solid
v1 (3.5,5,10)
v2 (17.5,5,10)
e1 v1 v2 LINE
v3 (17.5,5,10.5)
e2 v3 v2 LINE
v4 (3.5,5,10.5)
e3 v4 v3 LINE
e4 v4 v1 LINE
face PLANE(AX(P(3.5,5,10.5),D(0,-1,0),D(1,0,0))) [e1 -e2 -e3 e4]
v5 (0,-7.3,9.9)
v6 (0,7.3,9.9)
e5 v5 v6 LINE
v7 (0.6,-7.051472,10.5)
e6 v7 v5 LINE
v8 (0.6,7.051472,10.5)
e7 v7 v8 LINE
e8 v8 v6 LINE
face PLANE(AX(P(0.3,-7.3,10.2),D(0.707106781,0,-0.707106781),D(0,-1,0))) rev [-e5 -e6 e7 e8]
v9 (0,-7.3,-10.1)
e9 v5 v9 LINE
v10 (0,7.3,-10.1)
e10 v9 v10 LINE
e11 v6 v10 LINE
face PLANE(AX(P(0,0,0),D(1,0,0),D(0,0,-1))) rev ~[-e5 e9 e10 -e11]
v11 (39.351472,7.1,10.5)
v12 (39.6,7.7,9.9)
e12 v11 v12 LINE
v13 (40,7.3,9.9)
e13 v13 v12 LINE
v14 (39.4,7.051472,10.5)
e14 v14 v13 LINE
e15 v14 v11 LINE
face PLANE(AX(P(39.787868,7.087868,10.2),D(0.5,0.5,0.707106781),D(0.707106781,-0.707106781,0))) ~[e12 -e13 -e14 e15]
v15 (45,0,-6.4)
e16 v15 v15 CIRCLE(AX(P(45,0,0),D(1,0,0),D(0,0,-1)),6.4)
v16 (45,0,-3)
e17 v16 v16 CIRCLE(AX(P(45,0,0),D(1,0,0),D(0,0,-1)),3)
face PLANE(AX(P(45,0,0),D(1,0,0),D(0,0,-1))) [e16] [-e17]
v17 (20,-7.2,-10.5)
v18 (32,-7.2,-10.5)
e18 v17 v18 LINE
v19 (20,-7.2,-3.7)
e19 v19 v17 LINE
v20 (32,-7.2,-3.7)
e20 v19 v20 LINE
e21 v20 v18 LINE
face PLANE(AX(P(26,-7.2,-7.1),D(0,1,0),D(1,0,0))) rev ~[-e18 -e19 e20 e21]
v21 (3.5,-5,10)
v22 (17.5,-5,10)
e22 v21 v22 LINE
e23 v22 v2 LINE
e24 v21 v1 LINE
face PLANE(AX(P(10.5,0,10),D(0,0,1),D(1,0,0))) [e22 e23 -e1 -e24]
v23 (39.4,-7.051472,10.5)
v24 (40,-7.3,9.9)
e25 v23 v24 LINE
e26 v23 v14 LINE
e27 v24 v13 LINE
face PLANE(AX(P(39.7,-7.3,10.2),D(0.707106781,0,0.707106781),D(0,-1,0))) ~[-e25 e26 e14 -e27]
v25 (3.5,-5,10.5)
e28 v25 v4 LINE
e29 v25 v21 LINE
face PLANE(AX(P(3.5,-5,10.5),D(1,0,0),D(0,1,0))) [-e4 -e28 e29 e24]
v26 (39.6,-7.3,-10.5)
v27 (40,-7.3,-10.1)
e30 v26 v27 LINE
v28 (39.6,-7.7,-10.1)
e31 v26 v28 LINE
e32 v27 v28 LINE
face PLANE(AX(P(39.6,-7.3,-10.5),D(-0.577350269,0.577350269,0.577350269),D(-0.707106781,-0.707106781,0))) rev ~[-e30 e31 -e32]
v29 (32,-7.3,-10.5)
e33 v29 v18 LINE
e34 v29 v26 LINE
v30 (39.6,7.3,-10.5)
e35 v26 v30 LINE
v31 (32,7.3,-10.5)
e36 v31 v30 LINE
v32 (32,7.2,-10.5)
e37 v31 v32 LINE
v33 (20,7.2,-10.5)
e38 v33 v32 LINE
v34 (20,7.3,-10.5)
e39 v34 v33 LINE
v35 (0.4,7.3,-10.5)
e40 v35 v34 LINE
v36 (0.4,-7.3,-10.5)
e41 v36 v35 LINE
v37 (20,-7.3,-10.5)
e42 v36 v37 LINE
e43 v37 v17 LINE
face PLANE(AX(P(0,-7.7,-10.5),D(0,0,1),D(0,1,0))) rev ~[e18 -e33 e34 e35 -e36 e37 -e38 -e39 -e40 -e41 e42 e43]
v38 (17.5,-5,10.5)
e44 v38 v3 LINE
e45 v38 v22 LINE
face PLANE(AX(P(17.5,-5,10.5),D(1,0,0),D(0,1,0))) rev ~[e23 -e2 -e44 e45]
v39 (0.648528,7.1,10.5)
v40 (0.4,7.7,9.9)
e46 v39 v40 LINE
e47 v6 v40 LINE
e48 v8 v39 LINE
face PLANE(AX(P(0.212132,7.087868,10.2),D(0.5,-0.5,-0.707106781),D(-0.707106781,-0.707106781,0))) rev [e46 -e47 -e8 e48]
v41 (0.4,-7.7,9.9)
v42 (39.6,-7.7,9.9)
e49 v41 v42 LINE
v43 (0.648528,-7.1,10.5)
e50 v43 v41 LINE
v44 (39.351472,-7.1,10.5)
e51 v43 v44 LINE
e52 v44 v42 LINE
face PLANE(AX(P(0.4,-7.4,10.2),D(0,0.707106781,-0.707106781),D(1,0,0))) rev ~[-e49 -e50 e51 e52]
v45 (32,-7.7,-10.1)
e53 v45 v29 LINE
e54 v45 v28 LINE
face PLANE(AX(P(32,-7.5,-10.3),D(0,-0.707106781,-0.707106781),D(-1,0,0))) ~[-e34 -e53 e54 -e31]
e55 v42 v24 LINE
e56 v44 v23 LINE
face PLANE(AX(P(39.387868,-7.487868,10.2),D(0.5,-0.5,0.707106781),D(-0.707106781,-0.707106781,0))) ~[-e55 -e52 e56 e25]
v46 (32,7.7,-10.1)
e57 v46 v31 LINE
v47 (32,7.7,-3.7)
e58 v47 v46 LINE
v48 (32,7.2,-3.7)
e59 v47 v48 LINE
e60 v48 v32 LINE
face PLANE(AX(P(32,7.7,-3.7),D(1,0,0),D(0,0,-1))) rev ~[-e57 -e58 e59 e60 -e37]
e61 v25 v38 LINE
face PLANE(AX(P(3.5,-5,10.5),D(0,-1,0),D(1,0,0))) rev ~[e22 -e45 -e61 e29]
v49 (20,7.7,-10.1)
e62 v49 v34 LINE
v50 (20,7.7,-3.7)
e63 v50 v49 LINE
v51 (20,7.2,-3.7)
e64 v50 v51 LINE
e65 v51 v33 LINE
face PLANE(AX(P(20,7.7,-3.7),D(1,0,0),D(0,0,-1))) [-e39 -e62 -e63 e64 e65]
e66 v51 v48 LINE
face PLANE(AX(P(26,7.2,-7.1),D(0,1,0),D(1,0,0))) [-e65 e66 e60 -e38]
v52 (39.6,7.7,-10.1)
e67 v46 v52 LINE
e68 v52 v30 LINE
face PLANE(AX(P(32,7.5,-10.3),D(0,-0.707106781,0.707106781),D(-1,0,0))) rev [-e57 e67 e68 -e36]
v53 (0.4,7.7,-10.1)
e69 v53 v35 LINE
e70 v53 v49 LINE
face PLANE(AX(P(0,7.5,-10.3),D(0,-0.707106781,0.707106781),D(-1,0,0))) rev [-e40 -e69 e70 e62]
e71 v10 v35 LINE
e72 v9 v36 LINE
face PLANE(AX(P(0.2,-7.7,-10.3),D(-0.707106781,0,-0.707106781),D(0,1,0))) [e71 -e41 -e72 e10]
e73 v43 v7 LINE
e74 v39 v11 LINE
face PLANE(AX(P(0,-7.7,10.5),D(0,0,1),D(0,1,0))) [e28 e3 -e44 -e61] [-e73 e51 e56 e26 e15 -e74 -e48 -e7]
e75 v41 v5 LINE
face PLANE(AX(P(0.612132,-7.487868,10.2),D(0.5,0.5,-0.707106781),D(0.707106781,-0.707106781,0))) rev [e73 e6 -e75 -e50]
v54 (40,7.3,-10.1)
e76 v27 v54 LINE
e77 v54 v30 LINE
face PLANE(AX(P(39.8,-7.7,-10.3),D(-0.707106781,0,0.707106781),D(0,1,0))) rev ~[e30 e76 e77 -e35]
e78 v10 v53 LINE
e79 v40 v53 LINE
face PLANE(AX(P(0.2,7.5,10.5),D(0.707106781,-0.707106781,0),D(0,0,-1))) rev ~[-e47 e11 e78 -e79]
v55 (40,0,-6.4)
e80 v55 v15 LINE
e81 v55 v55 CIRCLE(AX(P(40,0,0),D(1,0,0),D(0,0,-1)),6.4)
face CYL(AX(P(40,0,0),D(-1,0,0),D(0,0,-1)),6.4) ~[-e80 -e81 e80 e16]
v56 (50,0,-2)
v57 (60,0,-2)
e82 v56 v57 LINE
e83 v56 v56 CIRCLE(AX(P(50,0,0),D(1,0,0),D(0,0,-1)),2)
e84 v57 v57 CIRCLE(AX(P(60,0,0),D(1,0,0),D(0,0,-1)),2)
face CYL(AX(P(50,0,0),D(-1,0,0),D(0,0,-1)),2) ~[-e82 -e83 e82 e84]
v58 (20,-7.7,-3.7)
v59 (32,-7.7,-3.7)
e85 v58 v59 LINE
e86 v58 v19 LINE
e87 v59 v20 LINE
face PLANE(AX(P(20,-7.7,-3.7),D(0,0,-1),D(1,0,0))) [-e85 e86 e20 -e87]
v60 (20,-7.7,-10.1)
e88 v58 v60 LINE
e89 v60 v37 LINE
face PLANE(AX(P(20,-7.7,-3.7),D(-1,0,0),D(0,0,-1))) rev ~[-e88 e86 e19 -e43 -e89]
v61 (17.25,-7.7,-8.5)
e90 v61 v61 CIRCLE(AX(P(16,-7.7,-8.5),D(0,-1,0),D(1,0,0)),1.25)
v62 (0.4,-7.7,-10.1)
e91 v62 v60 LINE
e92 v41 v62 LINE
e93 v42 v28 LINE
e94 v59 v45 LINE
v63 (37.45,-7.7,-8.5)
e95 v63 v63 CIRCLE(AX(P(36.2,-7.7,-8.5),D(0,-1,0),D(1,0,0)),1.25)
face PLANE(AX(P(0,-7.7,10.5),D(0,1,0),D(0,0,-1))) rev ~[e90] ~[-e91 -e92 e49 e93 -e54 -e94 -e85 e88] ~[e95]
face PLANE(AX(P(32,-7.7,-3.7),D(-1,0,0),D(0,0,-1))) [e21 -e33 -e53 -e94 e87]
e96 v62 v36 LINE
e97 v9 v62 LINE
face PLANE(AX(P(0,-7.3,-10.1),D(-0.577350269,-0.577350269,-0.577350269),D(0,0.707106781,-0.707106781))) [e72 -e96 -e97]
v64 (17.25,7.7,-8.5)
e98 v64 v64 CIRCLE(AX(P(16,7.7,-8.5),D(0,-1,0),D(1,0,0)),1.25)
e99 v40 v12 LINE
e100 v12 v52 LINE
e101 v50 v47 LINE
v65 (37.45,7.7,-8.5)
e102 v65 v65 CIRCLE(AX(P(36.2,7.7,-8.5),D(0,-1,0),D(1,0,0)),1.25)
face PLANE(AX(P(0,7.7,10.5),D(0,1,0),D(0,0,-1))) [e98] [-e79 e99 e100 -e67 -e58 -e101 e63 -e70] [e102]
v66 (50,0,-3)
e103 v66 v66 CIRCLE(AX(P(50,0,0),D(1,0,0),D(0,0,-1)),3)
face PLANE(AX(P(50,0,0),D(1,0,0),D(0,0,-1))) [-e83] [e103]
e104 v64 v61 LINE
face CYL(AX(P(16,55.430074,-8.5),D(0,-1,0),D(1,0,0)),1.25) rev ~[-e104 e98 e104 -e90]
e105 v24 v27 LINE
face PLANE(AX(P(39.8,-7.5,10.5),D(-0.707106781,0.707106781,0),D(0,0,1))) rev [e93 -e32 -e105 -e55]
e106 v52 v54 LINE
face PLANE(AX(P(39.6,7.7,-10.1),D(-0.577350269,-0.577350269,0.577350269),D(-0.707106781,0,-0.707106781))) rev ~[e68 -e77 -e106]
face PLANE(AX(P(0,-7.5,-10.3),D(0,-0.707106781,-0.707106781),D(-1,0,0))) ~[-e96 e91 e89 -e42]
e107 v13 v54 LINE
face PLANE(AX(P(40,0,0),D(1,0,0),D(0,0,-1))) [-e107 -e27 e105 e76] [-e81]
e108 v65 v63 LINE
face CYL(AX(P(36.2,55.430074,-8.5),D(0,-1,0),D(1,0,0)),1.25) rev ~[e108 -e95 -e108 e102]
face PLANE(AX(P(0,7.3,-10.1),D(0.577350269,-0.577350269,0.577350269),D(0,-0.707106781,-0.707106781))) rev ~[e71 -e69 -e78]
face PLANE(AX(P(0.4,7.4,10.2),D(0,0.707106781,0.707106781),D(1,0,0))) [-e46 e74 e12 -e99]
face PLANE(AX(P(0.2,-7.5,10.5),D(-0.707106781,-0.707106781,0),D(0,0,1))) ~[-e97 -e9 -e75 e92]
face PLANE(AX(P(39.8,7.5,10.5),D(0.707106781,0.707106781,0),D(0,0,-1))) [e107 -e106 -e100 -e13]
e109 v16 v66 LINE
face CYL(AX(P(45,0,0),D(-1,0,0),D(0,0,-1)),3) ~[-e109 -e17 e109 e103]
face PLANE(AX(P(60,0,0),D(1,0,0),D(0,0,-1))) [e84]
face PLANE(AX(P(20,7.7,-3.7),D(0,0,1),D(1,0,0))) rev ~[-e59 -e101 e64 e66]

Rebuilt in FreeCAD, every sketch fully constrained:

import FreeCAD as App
import Part
import Sketcher
from FreeCAD import Vector
Q = App.Units.Quantity


def edges_at(feature, points):
    """Names of the edges that pass closest to the given points."""
    edges = feature.Shape.Edges
    near = lambda p: min(range(len(edges)), key=lambda i: edges[i].distToShape(Part.Vertex(*p))[0])
    return sorted({f"Edge{near(p) + 1}" for p in points})


def add_polygon(sketch, points):
    """Adds a closed chain of lines whose ends are joined by coincident constraints."""
    first, n = sketch.GeometryCount, len(points)
    for a, b in zip(points, points[1:] + points[:1]):
        sketch.addGeometry(Part.LineSegment(App.Vector(*a, 0), App.Vector(*b, 0)), False)
    for i in range(n):
        sketch.addConstraint(Sketcher.Constraint("Coincident", first + i, 2, first + (i + 1) % n, 1))

doc = App.newDocument("Part")
body = doc.addObject("PartDesign::Body", "Body")

# Sketch on YZ plane
sketch1 = body.newObject("Sketcher::SketchObject", "Sketch")
sketch1.AttachmentSupport = (doc.getObject("YZ_Plane"), [""])
sketch1.MapMode = "FlatFace"
add_polygon(sketch1, [(7.7, 10.5), (-7.7, 10.5), (-7.7, -10.5), (7.7, -10.5)])  # lines 0-3
sketch1.addConstraint([
    Sketcher.Constraint("Horizontal", 0),
    Sketcher.Constraint("Vertical", 1),
    Sketcher.Constraint("Horizontal", 2),
    Sketcher.Constraint("Vertical", 3),
    Sketcher.Constraint("Symmetric", 0, 2, 2, 2, -1, 1),
    Sketcher.Constraint("DistanceY", 1, 2, 1, 1, Q("21 mm")),
    Sketcher.Constraint("DistanceX", 0, 2, 0, 1, Q("15.4 mm")),
])
pad1 = body.newObject("PartDesign::Pad", "Pad")
pad1.Profile = sketch1
pad1.Length = 40

# Sketch on XY plane
sketch2 = body.newObject("Sketcher::SketchObject", "Sketch001")
sketch2.AttachmentSupport = (doc.getObject("XY_Plane"), [""])
sketch2.MapMode = "FlatFace"
sketch2.AttachmentOffset = App.Placement(Vector(0, 0, 10.5), App.Rotation())
add_polygon(sketch2, [(3.5, 5), (3.5, -5), (17.5, -5), (17.5, 5)])  # lines 0-3
sketch2.addConstraint([
    Sketcher.Constraint("Vertical", 0),
    Sketcher.Constraint("Horizontal", 1),
    Sketcher.Constraint("Vertical", 2),
    Sketcher.Constraint("Horizontal", 3),
    Sketcher.Constraint("DistanceX", 1, 1, 1, 2, Q("14 mm")),
    Sketcher.Constraint("DistanceY", 0, 2, 0, 1, Q("10 mm")),
    Sketcher.Constraint("DistanceY", 0, 2, -1, 1, Q("5 mm")),
    Sketcher.Constraint("DistanceX", -1, 1, 0, 2, Q("3.5 mm")),
])
pocket1 = body.newObject("PartDesign::Pocket", "Pocket")
pocket1.Profile = sketch2
pocket1.Length = 0.5

# Sketch on XZ plane
sketch3 = body.newObject("Sketcher::SketchObject", "Sketch002")
sketch3.AttachmentSupport = (doc.getObject("XZ_Plane"), [""])
sketch3.MapMode = "FlatFace"
sketch3.AttachmentOffset = App.Placement(Vector(0, 0, -7.7), App.Rotation())
add_polygon(sketch3, [(20, -10.5), (20, -3.7), (32, -3.7), (32, -10.5)])  # lines 0-3
sketch3.addConstraint([
    Sketcher.Constraint("Vertical", 0),
    Sketcher.Constraint("Horizontal", 1),
    Sketcher.Constraint("Vertical", 2),
    Sketcher.Constraint("Horizontal", 3),
    Sketcher.Constraint("DistanceX", 1, 1, 1, 2, Q("12 mm")),
    Sketcher.Constraint("DistanceY", 0, 1, 0, 2, Q("6.8 mm")),
    Sketcher.Constraint("DistanceX", -1, 1, 0, 2, Q("20 mm")),
    Sketcher.Constraint("DistanceY", 0, 2, -1, 1, Q("3.7 mm")),
])
pocket2 = body.newObject("PartDesign::Pocket", "Pocket001")
pocket2.Profile = sketch3
pocket2.Length = 0.5
pocket2.Reversed = True

# Sketch on XZ plane
sketch4 = body.newObject("Sketcher::SketchObject", "Sketch003")
sketch4.AttachmentSupport = (doc.getObject("XZ_Plane"), [""])
sketch4.MapMode = "FlatFace"
sketch4.AttachmentOffset = App.Placement(Vector(0, 0, 7.7), App.Rotation())
add_polygon(sketch4, [(20, -10.5), (20, -3.7), (32, -3.7), (32, -10.5)])  # lines 0-3
sketch4.addConstraint([
    Sketcher.Constraint("Vertical", 0),
    Sketcher.Constraint("Horizontal", 1),
    Sketcher.Constraint("Vertical", 2),
    Sketcher.Constraint("Horizontal", 3),
    Sketcher.Constraint("DistanceX", 1, 1, 1, 2, Q("12 mm")),
    Sketcher.Constraint("DistanceY", 0, 1, 0, 2, Q("6.8 mm")),
    Sketcher.Constraint("DistanceX", -1, 1, 0, 2, Q("20 mm")),
    Sketcher.Constraint("DistanceY", 0, 2, -1, 1, Q("3.7 mm")),
])
pocket3 = body.newObject("PartDesign::Pocket", "Pocket002")
pocket3.Profile = sketch4
pocket3.Length = 0.5

# Sketch on XZ plane
sketch5 = body.newObject("Sketcher::SketchObject", "Sketch004")
sketch5.AttachmentSupport = (doc.getObject("XZ_Plane"), [""])
sketch5.MapMode = "FlatFace"
sketch5.AttachmentOffset = App.Placement(Vector(0, 0, -7.7), App.Rotation())
sketch5.addGeometry(Part.Circle(Vector(36.2, -8.5, 0), Vector(0, 0, 1), 1.25), False)
sketch5.addConstraint([
    Sketcher.Constraint("Diameter", 0, Q("2.5 mm")),
    Sketcher.Constraint("DistanceX", -1, 1, 0, 3, Q("36.2 mm")),
    Sketcher.Constraint("DistanceY", 0, 3, -1, 1, Q("8.5 mm")),
])
doc.recompute()
hole = body.newObject("PartDesign::Hole", "Hole")
hole.Profile = sketch5
hole.ThreadType = "None"
hole.Diameter = 2.5
hole.DepthType = "ThroughAll"
hole.Reversed = True

# Sketch on XZ plane
sketch6 = body.newObject("Sketcher::SketchObject", "Sketch005")
sketch6.AttachmentSupport = (doc.getObject("XZ_Plane"), [""])
sketch6.MapMode = "FlatFace"
sketch6.AttachmentOffset = App.Placement(Vector(0, 0, -7.7), App.Rotation())
sketch6.addGeometry(Part.Circle(Vector(16, -8.5, 0), Vector(0, 0, 1), 1.25), False)
sketch6.addConstraint([
    Sketcher.Constraint("Diameter", 0, Q("2.5 mm")),
    Sketcher.Constraint("DistanceX", -1, 1, 0, 3, Q("16 mm")),
    Sketcher.Constraint("DistanceY", 0, 3, -1, 1, Q("8.5 mm")),
])
doc.recompute()
hole2 = body.newObject("PartDesign::Hole", "Hole001")
hole2.Profile = sketch6
hole2.ThreadType = "None"
hole2.Diameter = 2.5
hole2.DepthType = "ThroughAll"
hole2.Reversed = True

# Sketch on YZ plane
sketch7 = body.newObject("Sketcher::SketchObject", "Sketch006")
sketch7.AttachmentSupport = (doc.getObject("YZ_Plane"), [""])
sketch7.MapMode = "FlatFace"
sketch7.AttachmentOffset = App.Placement(Vector(0, 0, 40), App.Rotation())
sketch7.addGeometry(Part.Circle(Vector(0, 0, 0), Vector(0, 0, 1), 6.4), False)
sketch7.addConstraint([
    Sketcher.Constraint("Coincident", 0, 3, -1, 1),
    Sketcher.Constraint("Diameter", 0, Q("12.8 mm")),
])
pad2 = body.newObject("PartDesign::Pad", "Pad001")
pad2.Profile = sketch7
pad2.Length = 5

# Sketch on YZ plane
sketch8 = body.newObject("Sketcher::SketchObject", "Sketch007")
sketch8.AttachmentSupport = (doc.getObject("YZ_Plane"), [""])
sketch8.MapMode = "FlatFace"
sketch8.AttachmentOffset = App.Placement(Vector(0, 0, 45), App.Rotation())
sketch8.addGeometry(Part.Circle(Vector(0, 0, 0), Vector(0, 0, 1), 3), False)
sketch8.addConstraint([
    Sketcher.Constraint("Coincident", 0, 3, -1, 1),
    Sketcher.Constraint("Diameter", 0, Q("6 mm")),
])
pad3 = body.newObject("PartDesign::Pad", "Pad002")
pad3.Profile = sketch8
pad3.Length = 5

# Sketch on YZ plane
sketch9 = body.newObject("Sketcher::SketchObject", "Sketch008")
sketch9.AttachmentSupport = (doc.getObject("YZ_Plane"), [""])
sketch9.MapMode = "FlatFace"
sketch9.AttachmentOffset = App.Placement(Vector(0, 0, 50), App.Rotation())
sketch9.addGeometry(Part.Circle(Vector(0, 0, 0), Vector(0, 0, 1), 2), False)
sketch9.addConstraint([
    Sketcher.Constraint("Coincident", 0, 3, -1, 1),
    Sketcher.Constraint("Diameter", 0, Q("4 mm")),
])
pad4 = body.newObject("PartDesign::Pad", "Pad003")
pad4.Profile = sketch9
pad4.Length = 10
doc.recompute()

chamfer = body.newObject("PartDesign::Chamfer", "Chamfer")
chamfer.Base = (pad4, edges_at(pad4, [
    (40, -7.7, 0),
    (10, 7.7, -10.5),
    (40, 0, -10.5),
    (10, -7.7, -10.5),
    (0, -7.7, 0),
    (0, 7.7, 0),
    (0, 0, -10.5),
    (40, 7.7, 0),
    (36, -7.7, -10.5),
    (36, 7.7, -10.5),
]))
chamfer.Size = 0.4
doc.recompute()

chamfer2 = body.newObject("PartDesign::Chamfer", "Chamfer001")
chamfer2.Base = (chamfer, edges_at(chamfer, [
    (40, 0, 10.5),
    (0, 0, 10.5),
    (20, -7.7, 10.5),
    (20, 7.7, 10.5),
    (0.2, -7.5, 10.5),
    (0.2, 7.5, 10.5),
    (39.8, -7.5, 10.5),
    (39.8, 7.5, 10.5),
]))
chamfer2.Size = 0.6

doc.recompute()
